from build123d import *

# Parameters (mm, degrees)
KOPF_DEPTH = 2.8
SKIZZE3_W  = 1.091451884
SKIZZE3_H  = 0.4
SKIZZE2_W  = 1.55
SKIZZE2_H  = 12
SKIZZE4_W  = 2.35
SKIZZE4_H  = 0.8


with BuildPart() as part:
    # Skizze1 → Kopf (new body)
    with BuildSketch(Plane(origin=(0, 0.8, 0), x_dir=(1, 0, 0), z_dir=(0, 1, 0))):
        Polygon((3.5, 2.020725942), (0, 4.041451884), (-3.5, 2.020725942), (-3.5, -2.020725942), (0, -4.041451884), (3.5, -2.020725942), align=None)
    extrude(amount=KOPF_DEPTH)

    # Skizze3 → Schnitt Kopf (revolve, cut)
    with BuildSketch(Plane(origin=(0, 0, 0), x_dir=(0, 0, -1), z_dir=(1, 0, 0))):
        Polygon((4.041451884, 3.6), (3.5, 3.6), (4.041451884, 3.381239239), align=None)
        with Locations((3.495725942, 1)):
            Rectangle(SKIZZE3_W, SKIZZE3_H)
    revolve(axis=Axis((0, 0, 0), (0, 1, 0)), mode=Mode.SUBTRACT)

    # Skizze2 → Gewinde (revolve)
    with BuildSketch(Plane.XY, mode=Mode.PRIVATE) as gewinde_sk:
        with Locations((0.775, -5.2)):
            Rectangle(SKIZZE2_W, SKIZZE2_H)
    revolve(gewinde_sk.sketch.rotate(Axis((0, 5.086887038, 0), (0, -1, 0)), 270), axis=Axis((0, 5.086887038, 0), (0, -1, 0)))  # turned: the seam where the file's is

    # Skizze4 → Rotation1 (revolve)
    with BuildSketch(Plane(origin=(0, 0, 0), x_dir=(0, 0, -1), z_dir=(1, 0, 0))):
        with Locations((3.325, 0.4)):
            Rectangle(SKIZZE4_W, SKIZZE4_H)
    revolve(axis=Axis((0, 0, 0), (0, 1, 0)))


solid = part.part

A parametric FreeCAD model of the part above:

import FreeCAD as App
import Part
import Sketcher
from FreeCAD import Vector
Q = App.Units.Quantity

doc = App.newDocument("Part")
body = doc.addObject("PartDesign::Body", "Body")

sketch1 = doc.addObject("Sketcher::SketchObject", "Sketch")
body.addObject(sketch1)
sketch1.AttachmentSupport = (doc.XZ_Plane, [""])
sketch1.MapMode = "FlatFace"
sketch1.AttachmentOffset = App.Placement(Vector(0, 0, -0.8), App.Rotation())
sketch1.addGeometry(Part.LineSegment(Vector(3.5, -2, 0), Vector(0, -4, 0)), False)
sketch1.addGeometry(Part.LineSegment(Vector(0, -4, 0), Vector(-3.5, -2, 0)), False)
sketch1.addGeometry(Part.LineSegment(Vector(-3.5, -2, 0), Vector(-3.5, 2, 0)), False)
sketch1.addGeometry(Part.LineSegment(Vector(-3.5, 2, 0), Vector(0, 4, 0)), False)
sketch1.addGeometry(Part.LineSegment(Vector(0, 4, 0), Vector(3.5, 2, 0)), False)
sketch1.addGeometry(Part.LineSegment(Vector(3.5, 2, 0), Vector(3.5, -2, 0)), False)
sketch1.addConstraint(Sketcher.Constraint("Coincident", 0, 2, 1, 1))
sketch1.addConstraint(Sketcher.Constraint("Coincident", 1, 2, 2, 1))
sketch1.addConstraint(Sketcher.Constraint("Coincident", 2, 2, 3, 1))
sketch1.addConstraint(Sketcher.Constraint("Coincident", 3, 2, 4, 1))
sketch1.addConstraint(Sketcher.Constraint("Coincident", 4, 2, 5, 1))
sketch1.addConstraint(Sketcher.Constraint("Coincident", 5, 2, 0, 1))
sketch1.addConstraint(Sketcher.Constraint("Vertical", 2))
sketch1.addConstraint(Sketcher.Constraint("Vertical", 5))
sketch1.addConstraint(Sketcher.Constraint("Symmetric", 0, 2, 3, 2, -1, 1))
sketch1.addConstraint(Sketcher.Constraint("Symmetric", 1, 2, 4, 2, -1, 1))
sketch1.addConstraint(Sketcher.Constraint("PointOnObject", 0, 2, -2))
sketch1.addConstraint(Sketcher.Constraint("Parallel", 0, 3))
sketch1.addConstraint(Sketcher.Constraint("Horizontal", 2, 2, 4, 2))
sketch1.addConstraint(Sketcher.Constraint("Angle", 0, Q("-150 deg")))
sketch1.addConstraint(Sketcher.Constraint("DistanceX", 2, 2, 4, 2, 7.0))
sketch1.addConstraint(Sketcher.Constraint("DistanceY", 2, 1, 2, 2, 4.041452))
pad1 = doc.addObject("PartDesign::Pad", "Pad")
body.addObject(pad1)
pad1.Profile = sketch1
pad1.Length = 2.8
pad1.Reversed = True

sketch2 = doc.addObject("Sketcher::SketchObject", "Sketch001")
body.addObject(sketch2)
sketch2.AttachmentSupport = (doc.YZ_Plane, [""])
sketch2.MapMode = "FlatFace"
sketch2.addGeometry(Part.LineSegment(Vector(3.6, -4.04, 0), Vector(3.6, -3.5, 0)), False)
sketch2.addGeometry(Part.LineSegment(Vector(3.6, -3.5, 0), Vector(3.38, -4.04, 0)), False)
sketch2.addGeometry(Part.LineSegment(Vector(3.38, -4.04, 0), Vector(3.6, -4.04, 0)), False)
sketch2.addGeometry(Part.LineSegment(Vector(1.2, -2.95, 0), Vector(0.8, -2.95, 0)), False)
sketch2.addGeometry(Part.LineSegment(Vector(0.8, -2.95, 0), Vector(0.8, -4.04, 0)), False)
sketch2.addGeometry(Part.LineSegment(Vector(0.8, -4.04, 0), Vector(1.2, -4.04, 0)), False)
sketch2.addGeometry(Part.LineSegment(Vector(1.2, -4.04, 0), Vector(1.2, -2.95, 0)), False)
sketch2.addConstraint(Sketcher.Constraint("Coincident", 0, 2, 1, 1))
sketch2.addConstraint(Sketcher.Constraint("Coincident", 1, 2, 2, 1))
sketch2.addConstraint(Sketcher.Constraint("Coincident", 2, 2, 0, 1))
sketch2.addConstraint(Sketcher.Constraint("Coincident", 3, 2, 4, 1))
sketch2.addConstraint(Sketcher.Constraint("Coincident", 4, 2, 5, 1))
sketch2.addConstraint(Sketcher.Constraint("Coincident", 5, 2, 6, 1))
sketch2.addConstraint(Sketcher.Constraint("Coincident", 6, 2, 3, 1))
sketch2.addConstraint(Sketcher.Constraint("Vertical", 0))
sketch2.addConstraint(Sketcher.Constraint("Horizontal", 2))
sketch2.addConstraint(Sketcher.Constraint("Horizontal", 3))
sketch2.addConstraint(Sketcher.Constraint("Vertical", 4))
sketch2.addConstraint(Sketcher.Constraint("Horizontal", 5))
sketch2.addConstraint(Sketcher.Constraint("Vertical", 6))
sketch2.addConstraint(Sketcher.Constraint("Horizontal", 2, 2, 4, 2))
sketch2.addConstraint(Sketcher.Constraint("Angle", 1, Q("-112 deg")))
sketch2.addConstraint(Sketcher.Constraint("DistanceX", 3, 2, 3, 1, 0.4))
sketch2.addConstraint(Sketcher.Constraint("DistanceX", -1, 1, 0, 2, 3.6))
sketch2.addConstraint(Sketcher.Constraint("DistanceY", 0, 2, -1, 1, 3.5))
sketch2.addConstraint(Sketcher.Constraint("DistanceX", -1, 1, 3, 2, 0.8))
sketch2.addConstraint(Sketcher.Constraint("DistanceY", 3, 2, -1, 1, 2.95))
sketch2.addConstraint(Sketcher.Constraint("DistanceX", 2, 1, 2, 2, 0.218761))
groove = doc.addObject("PartDesign::Groove", "Groove")
body.addObject(groove)
groove.Profile = sketch2
groove.ReferenceAxis = (sketch2, ["H_Axis"])
groove.Angle = 360

sketch3 = doc.addObject("Sketcher::SketchObject", "Sketch002")
body.addObject(sketch3)
sketch3.AttachmentSupport = (doc.XY_Plane, [""])
sketch3.MapMode = "FlatFace"
sketch3.addGeometry(Part.LineSegment(Vector(0, 0.8, 0), Vector(0, -11.2, 0)), False)
sketch3.addGeometry(Part.LineSegment(Vector(0, -11.2, 0), Vector(1.6, -11.2, 0)), False)
sketch3.addGeometry(Part.LineSegment(Vector(1.6, -11.2, 0), Vector(1.6, 0.8, 0)), False)
sketch3.addGeometry(Part.LineSegment(Vector(1.6, 0.8, 0), Vector(0, 0.8, 0)), False)
sketch3.addConstraint(Sketcher.Constraint("Coincident", 0, 2, 1, 1))
sketch3.addConstraint(Sketcher.Constraint("Coincident", 1, 2, 2, 1))
sketch3.addConstraint(Sketcher.Constraint("Coincident", 2, 2, 3, 1))
sketch3.addConstraint(Sketcher.Constraint("Coincident", 3, 2, 0, 1))
sketch3.addConstraint(Sketcher.Constraint("Vertical", 0))
sketch3.addConstraint(Sketcher.Constraint("Horizontal", 1))
sketch3.addConstraint(Sketcher.Constraint("Vertical", 2))
sketch3.addConstraint(Sketcher.Constraint("Horizontal", 3))
sketch3.addConstraint(Sketcher.Constraint("PointOnObject", 0, 2, -2))
sketch3.addConstraint(Sketcher.Constraint("DistanceY", 0, 2, 0, 1, 12.0))
sketch3.addConstraint(Sketcher.Constraint("DistanceX", 1, 1, 1, 2, 1.55))
sketch3.addConstraint(Sketcher.Constraint("DistanceY", 0, 2, -1, 1, 11.2))
revolution = doc.addObject("PartDesign::Revolution", "Revolution")
body.addObject(revolution)
revolution.Profile = sketch3
revolution.ReferenceAxis = (sketch3, ["V_Axis"])
revolution.Angle = 360

sketch4 = doc.addObject("Sketcher::SketchObject", "Sketch003")
body.addObject(sketch4)
sketch4.AttachmentSupport = (doc.YZ_Plane, [""])
sketch4.MapMode = "FlatFace"
sketch4.addGeometry(Part.LineSegment(Vector(0.8, -2.1, 0), Vector(0, -2.1, 0)), False)
sketch4.addGeometry(Part.LineSegment(Vector(0, -2.1, 0), Vector(0, -4.5, 0)), False)
sketch4.addGeometry(Part.LineSegment(Vector(0, -4.5, 0), Vector(0.8, -4.5, 0)), False)
sketch4.addGeometry(Part.LineSegment(Vector(0.8, -4.5, 0), Vector(0.8, -2.1, 0)), False)
sketch4.addConstraint(Sketcher.Constraint("Coincident", 0, 2, 1, 1))
sketch4.addConstraint(Sketcher.Constraint("Coincident", 1, 2, 2, 1))
sketch4.addConstraint(Sketcher.Constraint("Coincident", 2, 2, 3, 1))
sketch4.addConstraint(Sketcher.Constraint("Coincident", 3, 2, 0, 1))
sketch4.addConstraint(Sketcher.Constraint("Horizontal", 0))
sketch4.addConstraint(Sketcher.Constraint("Vertical", 1))
sketch4.addConstraint(Sketcher.Constraint("Horizontal", 2))
sketch4.addConstraint(Sketcher.Constraint("Vertical", 3))
sketch4.addConstraint(Sketcher.Constraint("PointOnObject", 0, 2, -2))
sketch4.addConstraint(Sketcher.Constraint("DistanceX", 0, 2, 0, 1, 0.8))
sketch4.addConstraint(Sketcher.Constraint("DistanceY", 1, 2, 1, 1, 2.35))
sketch4.addConstraint(Sketcher.Constraint("DistanceY", 1, 2, -1, 1, 4.5))
revolution2 = doc.addObject("PartDesign::Revolution", "Revolution001")
body.addObject(revolution2)
revolution2.Profile = sketch4
revolution2.ReferenceAxis = (sketch4, ["H_Axis"])
revolution2.Angle = 360

doc.recompute()
